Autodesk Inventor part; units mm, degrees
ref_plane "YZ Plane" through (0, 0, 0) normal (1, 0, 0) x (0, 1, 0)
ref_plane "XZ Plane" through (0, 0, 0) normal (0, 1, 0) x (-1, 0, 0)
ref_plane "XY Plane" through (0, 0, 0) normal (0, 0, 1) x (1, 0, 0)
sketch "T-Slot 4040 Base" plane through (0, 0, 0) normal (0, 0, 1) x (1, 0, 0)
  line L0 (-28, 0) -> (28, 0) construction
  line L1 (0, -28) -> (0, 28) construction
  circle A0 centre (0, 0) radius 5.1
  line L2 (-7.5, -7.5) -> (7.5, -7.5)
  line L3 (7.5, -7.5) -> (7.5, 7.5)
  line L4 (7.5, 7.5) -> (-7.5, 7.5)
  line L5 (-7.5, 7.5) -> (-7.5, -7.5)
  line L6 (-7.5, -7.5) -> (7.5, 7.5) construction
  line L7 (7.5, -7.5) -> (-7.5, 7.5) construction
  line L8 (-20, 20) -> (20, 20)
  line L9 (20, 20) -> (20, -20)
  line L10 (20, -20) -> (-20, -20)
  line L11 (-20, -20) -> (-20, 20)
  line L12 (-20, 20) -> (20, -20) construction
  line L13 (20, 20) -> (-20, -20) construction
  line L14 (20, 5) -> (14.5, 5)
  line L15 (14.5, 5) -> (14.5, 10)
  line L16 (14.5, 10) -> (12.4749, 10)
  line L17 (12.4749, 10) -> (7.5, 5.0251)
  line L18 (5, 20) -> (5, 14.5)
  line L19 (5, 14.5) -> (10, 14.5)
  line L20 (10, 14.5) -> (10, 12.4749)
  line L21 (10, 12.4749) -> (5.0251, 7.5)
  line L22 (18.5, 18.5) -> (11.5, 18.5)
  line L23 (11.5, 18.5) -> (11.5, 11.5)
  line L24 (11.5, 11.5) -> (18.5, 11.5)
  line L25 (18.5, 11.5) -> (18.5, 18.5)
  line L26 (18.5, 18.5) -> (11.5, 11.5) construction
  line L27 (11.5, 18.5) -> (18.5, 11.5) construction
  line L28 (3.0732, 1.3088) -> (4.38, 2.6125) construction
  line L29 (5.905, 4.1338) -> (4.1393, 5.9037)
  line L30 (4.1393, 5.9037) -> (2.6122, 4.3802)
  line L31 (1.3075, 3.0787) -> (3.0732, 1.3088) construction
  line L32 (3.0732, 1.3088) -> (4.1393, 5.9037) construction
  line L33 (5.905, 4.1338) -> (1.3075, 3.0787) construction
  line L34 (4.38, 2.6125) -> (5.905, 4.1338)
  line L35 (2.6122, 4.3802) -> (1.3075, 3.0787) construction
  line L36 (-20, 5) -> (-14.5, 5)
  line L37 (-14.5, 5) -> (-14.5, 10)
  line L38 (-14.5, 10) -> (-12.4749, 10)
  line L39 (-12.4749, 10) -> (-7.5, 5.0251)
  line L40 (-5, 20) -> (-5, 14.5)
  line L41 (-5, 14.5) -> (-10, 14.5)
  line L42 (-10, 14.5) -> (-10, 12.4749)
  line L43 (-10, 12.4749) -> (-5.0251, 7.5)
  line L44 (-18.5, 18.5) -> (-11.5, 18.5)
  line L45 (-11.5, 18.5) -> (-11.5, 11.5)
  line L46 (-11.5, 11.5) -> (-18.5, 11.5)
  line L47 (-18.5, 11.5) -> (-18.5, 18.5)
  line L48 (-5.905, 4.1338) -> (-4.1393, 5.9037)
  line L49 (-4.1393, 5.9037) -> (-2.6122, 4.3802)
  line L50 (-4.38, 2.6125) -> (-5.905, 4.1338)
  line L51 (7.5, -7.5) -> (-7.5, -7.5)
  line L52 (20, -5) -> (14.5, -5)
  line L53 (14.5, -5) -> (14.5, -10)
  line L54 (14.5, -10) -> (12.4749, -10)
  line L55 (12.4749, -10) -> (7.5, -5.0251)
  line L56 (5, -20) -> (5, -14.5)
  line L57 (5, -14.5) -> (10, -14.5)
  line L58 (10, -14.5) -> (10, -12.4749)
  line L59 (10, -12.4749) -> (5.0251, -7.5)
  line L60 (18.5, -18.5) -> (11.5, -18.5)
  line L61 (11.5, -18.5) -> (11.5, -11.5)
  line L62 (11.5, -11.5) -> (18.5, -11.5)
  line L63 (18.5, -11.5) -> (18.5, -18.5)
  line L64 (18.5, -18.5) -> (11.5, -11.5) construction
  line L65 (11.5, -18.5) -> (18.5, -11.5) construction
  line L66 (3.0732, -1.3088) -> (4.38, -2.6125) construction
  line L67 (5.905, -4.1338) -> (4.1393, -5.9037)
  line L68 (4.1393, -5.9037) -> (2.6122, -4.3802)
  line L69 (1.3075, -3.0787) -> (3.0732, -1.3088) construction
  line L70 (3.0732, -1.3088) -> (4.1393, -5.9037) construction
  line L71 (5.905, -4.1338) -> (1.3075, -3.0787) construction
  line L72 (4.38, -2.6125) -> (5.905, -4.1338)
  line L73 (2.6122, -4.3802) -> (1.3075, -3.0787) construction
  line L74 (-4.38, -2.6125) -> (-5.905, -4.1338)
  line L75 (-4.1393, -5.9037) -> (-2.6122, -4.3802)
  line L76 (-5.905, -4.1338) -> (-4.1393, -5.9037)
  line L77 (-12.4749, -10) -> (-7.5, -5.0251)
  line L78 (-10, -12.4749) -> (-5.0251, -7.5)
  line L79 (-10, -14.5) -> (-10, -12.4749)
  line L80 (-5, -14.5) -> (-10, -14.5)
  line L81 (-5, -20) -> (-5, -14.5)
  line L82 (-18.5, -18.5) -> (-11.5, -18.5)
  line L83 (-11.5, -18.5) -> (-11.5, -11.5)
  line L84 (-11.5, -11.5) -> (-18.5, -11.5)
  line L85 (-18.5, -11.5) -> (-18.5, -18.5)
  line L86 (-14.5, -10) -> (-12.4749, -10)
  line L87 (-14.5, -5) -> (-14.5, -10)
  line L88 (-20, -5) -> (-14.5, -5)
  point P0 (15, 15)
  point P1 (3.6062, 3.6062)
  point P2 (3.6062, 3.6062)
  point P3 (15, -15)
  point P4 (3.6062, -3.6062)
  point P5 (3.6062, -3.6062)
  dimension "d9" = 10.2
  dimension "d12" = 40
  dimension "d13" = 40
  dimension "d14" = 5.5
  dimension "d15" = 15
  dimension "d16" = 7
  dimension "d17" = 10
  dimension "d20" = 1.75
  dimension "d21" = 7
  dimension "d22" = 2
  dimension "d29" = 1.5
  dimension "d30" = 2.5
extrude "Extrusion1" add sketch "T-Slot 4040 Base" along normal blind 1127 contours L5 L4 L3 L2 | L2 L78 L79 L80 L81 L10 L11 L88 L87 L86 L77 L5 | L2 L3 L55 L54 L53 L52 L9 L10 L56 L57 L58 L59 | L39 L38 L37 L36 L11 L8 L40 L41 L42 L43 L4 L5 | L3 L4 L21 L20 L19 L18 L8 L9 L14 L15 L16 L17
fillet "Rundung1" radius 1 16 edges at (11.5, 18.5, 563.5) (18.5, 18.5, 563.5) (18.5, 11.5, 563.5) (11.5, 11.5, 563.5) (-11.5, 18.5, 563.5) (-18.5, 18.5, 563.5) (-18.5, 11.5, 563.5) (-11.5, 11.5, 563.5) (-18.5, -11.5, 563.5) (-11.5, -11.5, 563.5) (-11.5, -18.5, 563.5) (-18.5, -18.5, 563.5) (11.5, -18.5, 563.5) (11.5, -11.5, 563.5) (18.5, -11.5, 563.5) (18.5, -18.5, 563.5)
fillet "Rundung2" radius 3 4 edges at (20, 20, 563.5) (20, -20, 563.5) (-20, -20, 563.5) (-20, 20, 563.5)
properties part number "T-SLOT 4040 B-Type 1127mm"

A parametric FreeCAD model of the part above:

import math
import FreeCAD as App
import Part
import Sketcher

V = App.Vector
Q = App.Units.Quantity


def edges_at(feature, points):
    """Names of the edges that pass closest to the given points."""
    edges = feature.Shape.Edges
    near = lambda p: min(range(len(edges)), key=lambda i: edges[i].distToShape(Part.Vertex(*p))[0])
    return sorted({f"Edge{near(p) + 1}" for p in points})

doc = App.newDocument("Part")
body = doc.addObject("PartDesign::Body", "Body")

sketch1 = body.newObject("Sketcher::SketchObject", "Sketch")
sketch1.AttachmentSupport = (doc.getObject("XY_Plane"), [""])
sketch1.MapMode = "FlatFace"
sketch1.addGeometry([
    Part.LineSegment(V(-7.5, 5, 0), V(-7.5, -5, 0)),
    Part.LineSegment(V(-7.5, -5, 0), V(-12.5, -10, 0)),
    Part.LineSegment(V(-12.5, -10, 0), V(-14.5, -10, 0)),
    Part.LineSegment(V(-14.5, -10, 0), V(-14.5, -5, 0)),
    Part.LineSegment(V(-14.5, -5, 0), V(-20, -5, 0)),
    Part.LineSegment(V(-20, -5, 0), V(-20, -20, 0)),
    Part.LineSegment(V(-20, -20, 0), V(-5, -20, 0)),
    Part.LineSegment(V(-5, -20, 0), V(-5, -14.5, 0)),
    Part.LineSegment(V(-5, -14.5, 0), V(-10, -14.5, 0)),
    Part.LineSegment(V(-10, -14.5, 0), V(-10, -12.5, 0)),
    Part.LineSegment(V(-10, -12.5, 0), V(-5, -7.5, 0)),
    Part.LineSegment(V(-5, -7.5, 0), V(5, -7.5, 0)),
    Part.LineSegment(V(5, -7.5, 0), V(10, -12.5, 0)),
    Part.LineSegment(V(10, -12.5, 0), V(10, -14.5, 0)),
    Part.LineSegment(V(10, -14.5, 0), V(5, -14.5, 0)),
    Part.LineSegment(V(5, -14.5, 0), V(5, -20, 0)),
    Part.LineSegment(V(5, -20, 0), V(20, -20, 0)),
    Part.LineSegment(V(20, -20, 0), V(20, -5, 0)),
    Part.LineSegment(V(20, -5, 0), V(14.5, -5, 0)),
    Part.LineSegment(V(14.5, -5, 0), V(14.5, -10, 0)),
    Part.LineSegment(V(14.5, -10, 0), V(12.5, -10, 0)),
    Part.LineSegment(V(12.5, -10, 0), V(7.5, -5, 0)),
    Part.LineSegment(V(7.5, -5, 0), V(7.5, 5, 0)),
    Part.LineSegment(V(7.5, 5, 0), V(12.5, 10, 0)),
    Part.LineSegment(V(12.5, 10, 0), V(14.5, 10, 0)),
    Part.LineSegment(V(14.5, 10, 0), V(14.5, 5, 0)),
    Part.LineSegment(V(14.5, 5, 0), V(20, 5, 0)),
    Part.LineSegment(V(20, 5, 0), V(20, 20, 0)),
    Part.LineSegment(V(20, 20, 0), V(5, 20, 0)),
    Part.LineSegment(V(5, 20, 0), V(5, 14.5, 0)),
    Part.LineSegment(V(5, 14.5, 0), V(10, 14.5, 0)),
    Part.LineSegment(V(10, 14.5, 0), V(10, 12.5, 0)),
    Part.LineSegment(V(10, 12.5, 0), V(5, 7.5, 0)),
    Part.LineSegment(V(5, 7.5, 0), V(-5, 7.5, 0)),
    Part.LineSegment(V(-5, 7.5, 0), V(-10, 12.5, 0)),
    Part.LineSegment(V(-10, 12.5, 0), V(-10, 14.5, 0)),
    Part.LineSegment(V(-10, 14.5, 0), V(-5, 14.5, 0)),
    Part.LineSegment(V(-5, 14.5, 0), V(-5, 20, 0)),
    Part.LineSegment(V(-5, 20, 0), V(-20, 20, 0)),
    Part.LineSegment(V(-20, 20, 0), V(-20, 5, 0)),
    Part.LineSegment(V(-20, 5, 0), V(-14.5, 5, 0)),
    Part.LineSegment(V(-14.5, 5, 0), V(-14.5, 10, 0)),
    Part.LineSegment(V(-14.5, 10, 0), V(-12.5, 10, 0)),
    Part.LineSegment(V(-12.5, 10, 0), V(-7.5, 5, 0)),
    Part.ArcOfCircle(Part.Circle(V(0, 0, 0), V(0, 0, 1), 5.1), math.radians(-31), math.radians(31)),
    Part.LineSegment(V(4.4, -2.6, 0), V(5.9, -4.1, 0)),
    Part.LineSegment(V(5.9, -4.1, 0), V(4.1, -5.9, 0)),
    Part.LineSegment(V(4.1, -5.9, 0), V(2.6, -4.4, 0)),
    Part.ArcOfCircle(Part.Circle(V(0, 0, 0), V(0, 0, 1), 5.1), math.radians(-121), math.radians(-59)),
    Part.LineSegment(V(-2.6, -4.4, 0), V(-4.1, -5.9, 0)),
    Part.LineSegment(V(-4.1, -5.9, 0), V(-5.9, -4.1, 0)),
    Part.LineSegment(V(-5.9, -4.1, 0), V(-4.4, -2.6, 0)),
    Part.ArcOfCircle(Part.Circle(V(0, 0, 0), V(0, 0, 1), 5.1), math.radians(149), math.radians(211)),
    Part.LineSegment(V(-4.4, 2.6, 0), V(-5.9, 4.1, 0)),
    Part.LineSegment(V(-5.9, 4.1, 0), V(-4.1, 5.9, 0)),
    Part.LineSegment(V(-4.1, 5.9, 0), V(-2.6, 4.4, 0)),
    Part.ArcOfCircle(Part.Circle(V(0, 0, 0), V(0, 0, 1), 5.1), math.radians(59), math.radians(121)),
    Part.LineSegment(V(2.6, 4.4, 0), V(4.1, 5.9, 0)),
    Part.LineSegment(V(4.1, 5.9, 0), V(5.9, 4.1, 0)),
    Part.LineSegment(V(5.9, 4.1, 0), V(4.4, 2.6, 0)),
    Part.LineSegment(V(-18.5, -11.5, 0), V(-11.5, -11.5, 0)),
    Part.LineSegment(V(-11.5, -11.5, 0), V(-11.5, -18.5, 0)),
    Part.LineSegment(V(-11.5, -18.5, 0), V(-18.5, -18.5, 0)),
    Part.LineSegment(V(-18.5, -18.5, 0), V(-18.5, -11.5, 0)),
    Part.LineSegment(V(-11.5, 18.5, 0), V(-11.5, 11.5, 0)),
    Part.LineSegment(V(-11.5, 11.5, 0), V(-18.5, 11.5, 0)),
    Part.LineSegment(V(-18.5, 11.5, 0), V(-18.5, 18.5, 0)),
    Part.LineSegment(V(-18.5, 18.5, 0), V(-11.5, 18.5, 0)),
    Part.LineSegment(V(18.5, 11.5, 0), V(11.5, 11.5, 0)),
    Part.LineSegment(V(11.5, 11.5, 0), V(11.5, 18.5, 0)),
    Part.LineSegment(V(11.5, 18.5, 0), V(18.5, 18.5, 0)),
    Part.LineSegment(V(18.5, 18.5, 0), V(18.5, 11.5, 0)),
    Part.LineSegment(V(11.5, -18.5, 0), V(11.5, -11.5, 0)),
    Part.LineSegment(V(11.5, -11.5, 0), V(18.5, -11.5, 0)),
    Part.LineSegment(V(18.5, -11.5, 0), V(18.5, -18.5, 0)),
    Part.LineSegment(V(18.5, -18.5, 0), V(11.5, -18.5, 0)),
], False)
sketch1.addConstraint([
    Sketcher.Constraint("Coincident", 0, 2, 1, 1),
    Sketcher.Constraint("Coincident", 1, 2, 2, 1),
    Sketcher.Constraint("Coincident", 2, 2, 3, 1),
    Sketcher.Constraint("Coincident", 3, 2, 4, 1),
    Sketcher.Constraint("Coincident", 4, 2, 5, 1),
    Sketcher.Constraint("Coincident", 5, 2, 6, 1),
    Sketcher.Constraint("Coincident", 6, 2, 7, 1),
    Sketcher.Constraint("Coincident", 7, 2, 8, 1),
    Sketcher.Constraint("Coincident", 8, 2, 9, 1),
    Sketcher.Constraint("Coincident", 9, 2, 10, 1),
    Sketcher.Constraint("Coincident", 10, 2, 11, 1),
    Sketcher.Constraint("Coincident", 11, 2, 12, 1),
    Sketcher.Constraint("Coincident", 12, 2, 13, 1),
    Sketcher.Constraint("Coincident", 13, 2, 14, 1),
    Sketcher.Constraint("Coincident", 14, 2, 15, 1),
    Sketcher.Constraint("Coincident", 15, 2, 16, 1),
    Sketcher.Constraint("Coincident", 16, 2, 17, 1),
    Sketcher.Constraint("Coincident", 17, 2, 18, 1),
    Sketcher.Constraint("Coincident", 18, 2, 19, 1),
    Sketcher.Constraint("Coincident", 19, 2, 20, 1),
    Sketcher.Constraint("Coincident", 20, 2, 21, 1),
    Sketcher.Constraint("Coincident", 21, 2, 22, 1),
    Sketcher.Constraint("Coincident", 22, 2, 23, 1),
    Sketcher.Constraint("Coincident", 23, 2, 24, 1),
    Sketcher.Constraint("Coincident", 24, 2, 25, 1),
    Sketcher.Constraint("Coincident", 25, 2, 26, 1),
    Sketcher.Constraint("Coincident", 26, 2, 27, 1),
    Sketcher.Constraint("Coincident", 27, 2, 28, 1),
    Sketcher.Constraint("Coincident", 28, 2, 29, 1),
    Sketcher.Constraint("Coincident", 29, 2, 30, 1),
    Sketcher.Constraint("Coincident", 30, 2, 31, 1),
    Sketcher.Constraint("Coincident", 31, 2, 32, 1),
    Sketcher.Constraint("Coincident", 32, 2, 33, 1),
    Sketcher.Constraint("Coincident", 33, 2, 34, 1),
    Sketcher.Constraint("Coincident", 34, 2, 35, 1),
    Sketcher.Constraint("Coincident", 35, 2, 36, 1),
    Sketcher.Constraint("Coincident", 36, 2, 37, 1),
    Sketcher.Constraint("Coincident", 37, 2, 38, 1),
    Sketcher.Constraint("Coincident", 38, 2, 39, 1),
    Sketcher.Constraint("Coincident", 39, 2, 40, 1),
    Sketcher.Constraint("Coincident", 40, 2, 41, 1),
    Sketcher.Constraint("Coincident", 41, 2, 42, 1),
    Sketcher.Constraint("Coincident", 42, 2, 43, 1),
    Sketcher.Constraint("Coincident", 43, 2, 0, 1),
    Sketcher.Constraint("Coincident", 44, 1, 45, 1),
    Sketcher.Constraint("Coincident", 45, 2, 46, 1),
    Sketcher.Constraint("Coincident", 46, 2, 47, 1),
    Sketcher.Constraint("Coincident", 47, 2, 48, 2),
    Sketcher.Constraint("Coincident", 48, 1, 49, 1),
    Sketcher.Constraint("Coincident", 49, 2, 50, 1),
    Sketcher.Constraint("Coincident", 50, 2, 51, 1),
    Sketcher.Constraint("Coincident", 51, 2, 52, 2),
    Sketcher.Constraint("Coincident", 52, 1, 53, 1),
    Sketcher.Constraint("Coincident", 53, 2, 54, 1),
    Sketcher.Constraint("Coincident", 54, 2, 55, 1),
    Sketcher.Constraint("Coincident", 55, 2, 56, 2),
    Sketcher.Constraint("Coincident", 56, 1, 57, 1),
    Sketcher.Constraint("Coincident", 57, 2, 58, 1),
    Sketcher.Constraint("Coincident", 58, 2, 59, 1),
    Sketcher.Constraint("Coincident", 59, 2, 44, 2),
    Sketcher.Constraint("Coincident", 60, 2, 61, 1),
    Sketcher.Constraint("Coincident", 61, 2, 62, 1),
    Sketcher.Constraint("Coincident", 62, 2, 63, 1),
    Sketcher.Constraint("Coincident", 63, 2, 60, 1),
    Sketcher.Constraint("Coincident", 64, 2, 65, 1),
    Sketcher.Constraint("Coincident", 65, 2, 66, 1),
    Sketcher.Constraint("Coincident", 66, 2, 67, 1),
    Sketcher.Constraint("Coincident", 67, 2, 64, 1),
    Sketcher.Constraint("Coincident", 68, 2, 69, 1),
    Sketcher.Constraint("Coincident", 69, 2, 70, 1),
    Sketcher.Constraint("Coincident", 70, 2, 71, 1),
    Sketcher.Constraint("Coincident", 71, 2, 68, 1),
    Sketcher.Constraint("Coincident", 72, 2, 73, 1),
    Sketcher.Constraint("Coincident", 73, 2, 74, 1),
    Sketcher.Constraint("Coincident", 74, 2, 75, 1),
    Sketcher.Constraint("Coincident", 75, 2, 72, 1),
    Sketcher.Constraint("Vertical", 0),
    Sketcher.Constraint("Horizontal", 2),
    Sketcher.Constraint("Vertical", 3),
    Sketcher.Constraint("Horizontal", 4),
    Sketcher.Constraint("Vertical", 5),
    Sketcher.Constraint("Horizontal", 6),
    Sketcher.Constraint("Vertical", 7),
    Sketcher.Constraint("Horizontal", 8),
    Sketcher.Constraint("Vertical", 9),
    Sketcher.Constraint("Horizontal", 11),
    Sketcher.Constraint("Vertical", 13),
    Sketcher.Constraint("Horizontal", 14),
    Sketcher.Constraint("Vertical", 15),
    Sketcher.Constraint("Horizontal", 16),
    Sketcher.Constraint("Vertical", 17),
    Sketcher.Constraint("Horizontal", 18),
    Sketcher.Constraint("Vertical", 19),
    Sketcher.Constraint("Horizontal", 20),
    Sketcher.Constraint("Vertical", 22),
    Sketcher.Constraint("Horizontal", 24),
    Sketcher.Constraint("Vertical", 25),
    Sketcher.Constraint("Horizontal", 26),
    Sketcher.Constraint("Vertical", 27),
    Sketcher.Constraint("Horizontal", 28),
    Sketcher.Constraint("Vertical", 29),
    Sketcher.Constraint("Horizontal", 30),
    Sketcher.Constraint("Vertical", 31),
    Sketcher.Constraint("Horizontal", 33),
    Sketcher.Constraint("Vertical", 35),
    Sketcher.Constraint("Horizontal", 36),
    Sketcher.Constraint("Vertical", 37),
    Sketcher.Constraint("Horizontal", 38),
    Sketcher.Constraint("Vertical", 39),
    Sketcher.Constraint("Horizontal", 40),
    Sketcher.Constraint("Vertical", 41),
    Sketcher.Constraint("Horizontal", 42),
    Sketcher.Constraint("Horizontal", 60),
    Sketcher.Constraint("Vertical", 61),
    Sketcher.Constraint("Horizontal", 62),
    Sketcher.Constraint("Vertical", 63),
    Sketcher.Constraint("Vertical", 64),
    Sketcher.Constraint("Horizontal", 65),
    Sketcher.Constraint("Vertical", 66),
    Sketcher.Constraint("Horizontal", 67),
    Sketcher.Constraint("Horizontal", 68),
    Sketcher.Constraint("Vertical", 69),
    Sketcher.Constraint("Horizontal", 70),
    Sketcher.Constraint("Vertical", 71),
    Sketcher.Constraint("Vertical", 72),
    Sketcher.Constraint("Horizontal", 73),
    Sketcher.Constraint("Vertical", 74),
    Sketcher.Constraint("Horizontal", 75),
    Sketcher.Constraint("Coincident", 44, 3, -1, 1),
    Sketcher.Constraint("Coincident", 48, 3, -1, 1),
    Sketcher.Constraint("Coincident", 52, 3, -1, 1),
    Sketcher.Constraint("Coincident", 56, 3, -1, 1),
    Sketcher.Constraint("Equal", 44, 48),
    Sketcher.Constraint("Equal", 48, 52),
    Sketcher.Constraint("Equal", 52, 56),
    Sketcher.Constraint("Symmetric", 0, 2, 22, 2, -1, 1),
    Sketcher.Constraint("Symmetric", 1, 2, 23, 2, -1, 1),
    Sketcher.Constraint("Symmetric", 3, 2, 25, 2, -1, 1),
    Sketcher.Constraint("Symmetric", 5, 2, 27, 2, -1, 1),
    Sketcher.Constraint("Symmetric", 7, 2, 29, 2, -1, 1),
    Sketcher.Constraint("Symmetric", 9, 2, 31, 2, -1, 1),
    Sketcher.Constraint("Symmetric", 10, 2, 32, 2, -1, 1),
    Sketcher.Constraint("Symmetric", 12, 2, 34, 2, -1, 1),
    Sketcher.Constraint("Symmetric", 14, 2, 36, 2, -1, 1),
    Sketcher.Constraint("Symmetric", 16, 2, 38, 2, -1, 1),
    Sketcher.Constraint("Symmetric", 18, 2, 40, 2, -1, 1),
    Sketcher.Constraint("Symmetric", 20, 2, 42, 2, -1, 1),
    Sketcher.Constraint("Symmetric", 45, 2, 53, 2, -1, 1),
    Sketcher.Constraint("Symmetric", 46, 2, 54, 2, -1, 1),
    Sketcher.Constraint("Symmetric", 49, 2, 57, 2, -1, 1),
    Sketcher.Constraint("Symmetric", 50, 2, 58, 2, -1, 1),
    Sketcher.Constraint("Symmetric", 60, 2, 68, 2, -1, 1),
    Sketcher.Constraint("Symmetric", 62, 2, 70, 2, -1, 1),
    Sketcher.Constraint("Symmetric", 64, 2, 72, 2, -1, 1),
    Sketcher.Constraint("Symmetric", 66, 2, 74, 2, -1, 1),
    Sketcher.Constraint("Symmetric", 9, 2, 12, 2, -2),
    Sketcher.Constraint("Symmetric", 7, 2, 14, 2, -2),
    Sketcher.Constraint("Symmetric", 5, 2, 16, 2, -2),
    Sketcher.Constraint("Symmetric", 3, 2, 18, 2, -2),
    Sketcher.Constraint("Symmetric", 1, 2, 20, 2, -2),
    Sketcher.Constraint("Symmetric", 46, 2, 49, 2, -2),
    Sketcher.Constraint("Symmetric", 45, 2, 50, 2, -2),
    Sketcher.Constraint("Symmetric", 64, 2, 68, 2, -2),
    Sketcher.Constraint("Symmetric", 66, 2, 70, 2, -2),
    Sketcher.Constraint("Parallel", 1, 10),
    Sketcher.Constraint("Perpendicular", 10, 12),
    Sketcher.Constraint("Parallel", 12, 21),
    Sketcher.Constraint("Perpendicular", 32, 34),
    Sketcher.Constraint("Parallel", 34, 43),
    Sketcher.Constraint("Perpendicular", 45, 46),
    Sketcher.Constraint("Perpendicular", 46, 47),
    Sketcher.Constraint("Perpendicular", 49, 50),
    Sketcher.Constraint("Perpendicular", 50, 51),
    Sketcher.Constraint("Parallel", 47, 53),
    Sketcher.Constraint("Perpendicular", 54, 55),
    Sketcher.Constraint("Parallel", 51, 57),
    Sketcher.Constraint("Perpendicular", 58, 59),
    Sketcher.Constraint("Horizontal", 0, 2, 21, 2),
    Sketcher.Constraint("Equal", 33, 0),
    Sketcher.Constraint("Equal", 36, 3),
    Sketcher.Constraint("Equal", 38, 5),
    Sketcher.Constraint("Equal", 40, 7),
    Sketcher.Constraint("Equal", 42, 9),
    Sketcher.Constraint("Equal", 75, 61),
    Sketcher.Constraint("Equal", 1, 10),
    Sketcher.Constraint("Radius", 44, Q("5.1 mm")),
    Sketcher.Constraint("DistanceX", 6, 1, 6, 2, Q("15 mm")),
    Sketcher.Constraint("DistanceX", 60, 1, 60, 2, Q("7 mm")),
    Sketcher.Constraint("DistanceX", 4, 2, 4, 1, Q("5.5 mm")),
    Sketcher.Constraint("DistanceY", 1, 2, -1, 1, Q("10 mm")),
    Sketcher.Constraint("Distance", 46, Q("2.5 mm")),
    Sketcher.Constraint("DistanceX", 8, 2, 8, 1, Q("5 mm")),
    Sketcher.Constraint("DistanceX", 0, 2, -1, 1, Q("7.5 mm")),
    Sketcher.Constraint("DistanceX", 60, 2, -1, 1, Q("11.5 mm")),
    Sketcher.Constraint("DistanceY", 60, 2, -1, 1, Q("11.5 mm")),
    Sketcher.Constraint("Angle", 45, Q("-44.9304 deg")),
    Sketcher.Constraint("DistanceX", 2, 2, 2, 1, Q("2.025 mm")),
    Sketcher.Constraint("DistanceX", -1, 1, 44, 1, Q("4.38 mm")),
    Sketcher.Constraint("Distance", 45, Q("2.154 mm")),
])
pad1 = body.newObject("PartDesign::Pad", "Pad")
pad1.Profile = sketch1
pad1.Length = 1127
doc.recompute()

fillet = body.newObject("PartDesign::Fillet", "Fillet")
fillet.Base = (pad1, edges_at(pad1, [
    (11.5, 18.5, 563.5),
    (18.5, 18.5, 563.5),
    (18.5, 11.5, 563.5),
    (11.5, 11.5, 563.5),
    (-11.5, 18.5, 563.5),
    (-18.5, 18.5, 563.5),
    (-18.5, 11.5, 563.5),
    (-11.5, 11.5, 563.5),
    (-18.5, -11.5, 563.5),
    (-11.5, -11.5, 563.5),
    (-11.5, -18.5, 563.5),
    (-18.5, -18.5, 563.5),
    (11.5, -18.5, 563.5),
    (11.5, -11.5, 563.5),
    (18.5, -11.5, 563.5),
    (18.5, -18.5, 563.5),
]))
fillet.Radius = 1
doc.recompute()

fillet2 = body.newObject("PartDesign::Fillet", "Fillet001")
fillet2.Base = (fillet, edges_at(fillet, [
    (20, 20, 563.5),
    (20, -20, 563.5),
    (-20, -20, 563.5),
    (-20, 20, 563.5),
]))
fillet2.Radius = 3

doc.recompute()
